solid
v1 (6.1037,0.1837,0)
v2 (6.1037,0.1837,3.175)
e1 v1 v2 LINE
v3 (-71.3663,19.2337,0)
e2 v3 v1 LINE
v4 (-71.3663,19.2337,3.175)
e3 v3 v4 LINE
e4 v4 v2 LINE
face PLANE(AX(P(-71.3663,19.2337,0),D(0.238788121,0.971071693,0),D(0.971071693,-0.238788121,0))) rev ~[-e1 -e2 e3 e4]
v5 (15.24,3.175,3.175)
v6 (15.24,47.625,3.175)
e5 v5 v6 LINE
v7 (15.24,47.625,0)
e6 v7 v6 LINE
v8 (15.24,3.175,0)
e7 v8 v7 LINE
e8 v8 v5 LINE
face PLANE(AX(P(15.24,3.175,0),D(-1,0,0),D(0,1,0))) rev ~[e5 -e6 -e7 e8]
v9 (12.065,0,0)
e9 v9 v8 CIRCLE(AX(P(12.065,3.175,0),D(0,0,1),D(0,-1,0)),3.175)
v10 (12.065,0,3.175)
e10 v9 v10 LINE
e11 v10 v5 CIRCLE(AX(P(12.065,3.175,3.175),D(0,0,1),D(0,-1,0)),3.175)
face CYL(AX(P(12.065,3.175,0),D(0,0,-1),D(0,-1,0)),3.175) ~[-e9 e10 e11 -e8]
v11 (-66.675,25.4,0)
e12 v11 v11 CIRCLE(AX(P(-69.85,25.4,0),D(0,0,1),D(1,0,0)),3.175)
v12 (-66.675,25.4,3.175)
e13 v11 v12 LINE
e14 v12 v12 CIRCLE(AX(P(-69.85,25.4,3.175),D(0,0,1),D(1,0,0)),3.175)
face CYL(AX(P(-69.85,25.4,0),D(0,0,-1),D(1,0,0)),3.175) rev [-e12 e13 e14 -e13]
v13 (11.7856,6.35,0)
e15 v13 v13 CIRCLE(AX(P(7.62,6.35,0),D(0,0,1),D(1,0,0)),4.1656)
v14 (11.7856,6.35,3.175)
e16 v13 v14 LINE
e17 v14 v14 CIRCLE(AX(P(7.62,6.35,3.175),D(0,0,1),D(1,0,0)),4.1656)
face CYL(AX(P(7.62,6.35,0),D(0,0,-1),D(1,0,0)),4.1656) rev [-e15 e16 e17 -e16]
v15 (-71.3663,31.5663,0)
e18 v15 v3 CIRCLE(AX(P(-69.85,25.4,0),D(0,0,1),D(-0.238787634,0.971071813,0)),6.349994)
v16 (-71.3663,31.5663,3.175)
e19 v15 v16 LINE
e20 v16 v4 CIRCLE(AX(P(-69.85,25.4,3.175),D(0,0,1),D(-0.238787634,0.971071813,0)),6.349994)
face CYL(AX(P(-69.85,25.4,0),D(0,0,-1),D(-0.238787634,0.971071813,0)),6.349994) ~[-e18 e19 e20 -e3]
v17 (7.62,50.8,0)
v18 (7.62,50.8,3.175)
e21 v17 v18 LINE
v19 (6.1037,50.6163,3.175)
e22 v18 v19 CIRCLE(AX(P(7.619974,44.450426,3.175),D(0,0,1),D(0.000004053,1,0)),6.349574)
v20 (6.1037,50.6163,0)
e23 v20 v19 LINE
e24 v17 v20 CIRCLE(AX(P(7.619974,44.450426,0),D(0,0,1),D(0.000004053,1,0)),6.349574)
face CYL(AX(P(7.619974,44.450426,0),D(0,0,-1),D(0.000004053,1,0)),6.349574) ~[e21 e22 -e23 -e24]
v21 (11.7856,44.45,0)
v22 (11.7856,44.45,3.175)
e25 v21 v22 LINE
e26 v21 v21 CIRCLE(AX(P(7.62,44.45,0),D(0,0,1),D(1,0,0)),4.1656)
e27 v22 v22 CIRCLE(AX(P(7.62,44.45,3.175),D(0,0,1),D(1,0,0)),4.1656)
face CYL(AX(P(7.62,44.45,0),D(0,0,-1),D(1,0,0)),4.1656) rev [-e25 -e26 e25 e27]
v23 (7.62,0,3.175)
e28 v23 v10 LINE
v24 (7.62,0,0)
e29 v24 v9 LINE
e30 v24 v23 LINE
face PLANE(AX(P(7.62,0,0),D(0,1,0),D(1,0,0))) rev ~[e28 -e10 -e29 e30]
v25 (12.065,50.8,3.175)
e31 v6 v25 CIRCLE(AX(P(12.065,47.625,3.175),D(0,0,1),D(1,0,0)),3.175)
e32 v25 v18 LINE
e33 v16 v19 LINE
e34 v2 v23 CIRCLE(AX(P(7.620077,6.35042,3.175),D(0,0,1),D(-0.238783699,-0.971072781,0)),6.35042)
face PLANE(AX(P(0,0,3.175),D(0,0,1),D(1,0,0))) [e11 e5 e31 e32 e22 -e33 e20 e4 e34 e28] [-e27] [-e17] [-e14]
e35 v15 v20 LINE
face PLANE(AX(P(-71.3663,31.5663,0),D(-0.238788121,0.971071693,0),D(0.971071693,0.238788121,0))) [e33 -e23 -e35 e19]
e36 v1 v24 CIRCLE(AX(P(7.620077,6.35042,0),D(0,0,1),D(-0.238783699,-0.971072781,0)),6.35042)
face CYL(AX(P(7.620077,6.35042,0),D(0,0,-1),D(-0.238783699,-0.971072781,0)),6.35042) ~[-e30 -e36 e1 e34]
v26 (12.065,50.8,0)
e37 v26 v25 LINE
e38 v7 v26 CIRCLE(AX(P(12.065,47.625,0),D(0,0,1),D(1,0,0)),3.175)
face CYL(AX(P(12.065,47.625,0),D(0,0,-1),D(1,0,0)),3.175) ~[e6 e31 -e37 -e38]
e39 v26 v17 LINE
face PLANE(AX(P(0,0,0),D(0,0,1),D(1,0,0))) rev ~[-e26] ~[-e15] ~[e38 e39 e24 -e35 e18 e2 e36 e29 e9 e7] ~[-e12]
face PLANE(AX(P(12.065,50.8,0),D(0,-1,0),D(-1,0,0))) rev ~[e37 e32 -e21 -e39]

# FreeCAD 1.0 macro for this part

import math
import FreeCAD as App
import Part
import Sketcher
from FreeCAD import Vector
Q = App.Units.Quantity

doc = App.newDocument("Part")
body = doc.addObject("PartDesign::Body", "Body")

sketch1 = body.newObject("Sketcher::SketchObject", "Sketch")
sketch1.AttachmentSupport = (doc.getObject("XY_Plane"), [""])
sketch1.MapMode = "FlatFace"
sketch1.addGeometry(Part.ArcOfCircle(Part.Circle(Vector(7.6, 6.3, 0), Vector(0, 0, 1), 6.3), math.radians(-103.81), math.radians(-90)), False)
sketch1.addGeometry(Part.LineSegment(Vector(7.6, 0, 0), Vector(12.1, 0, 0)), False)
sketch1.addGeometry(Part.ArcOfCircle(Part.Circle(Vector(12.1, 3.2, 0), Vector(0, 0, 1), 3.2), math.radians(-90), math.radians(0)), False)
sketch1.addGeometry(Part.LineSegment(Vector(15.2, 3.2, 0), Vector(15.2, 47.6, 0)), False)
sketch1.addGeometry(Part.ArcOfCircle(Part.Circle(Vector(12.1, 47.6, 0), Vector(0, 0, 1), 3.2), math.radians(0), math.radians(90)), False)
sketch1.addGeometry(Part.LineSegment(Vector(12.1, 50.8, 0), Vector(7.6, 50.8, 0)), False)
sketch1.addGeometry(Part.ArcOfCircle(Part.Circle(Vector(7.6, 44.5, 0), Vector(0, 0, 1), 6.3), math.radians(90), math.radians(103.81)), False)
sketch1.addGeometry(Part.LineSegment(Vector(6.1, 50.6, 0), Vector(-71.4, 31.6, 0)), False)
sketch1.addGeometry(Part.ArcOfCircle(Part.Circle(Vector(-69.8, 25.4, 0), Vector(0, 0, 1), 6.3), math.radians(104), math.radians(256)), False)
sketch1.addGeometry(Part.LineSegment(Vector(-71.4, 19.2, 0), Vector(6.1, 0.2, 0)), False)
sketch1.addGeometry(Part.Circle(Vector(-69.8, 25.4, 0), Vector(0, 0, 1), 3.2), False)
sketch1.addGeometry(Part.Circle(Vector(7.6, 6.3, 0), Vector(0, 0, 1), 4.2), False)
sketch1.addGeometry(Part.Circle(Vector(7.6, 44.5, 0), Vector(0, 0, 1), 4.2), False)
sketch1.addConstraint(Sketcher.Constraint("Tangent", 0, 2, 1, 1))
sketch1.addConstraint(Sketcher.Constraint("Tangent", 1, 2, 2, 1))
sketch1.addConstraint(Sketcher.Constraint("Tangent", 2, 2, 3, 1))
sketch1.addConstraint(Sketcher.Constraint("Tangent", 3, 2, 4, 1))
sketch1.addConstraint(Sketcher.Constraint("Tangent", 4, 2, 5, 1))
sketch1.addConstraint(Sketcher.Constraint("Tangent", 5, 2, 6, 1))
sketch1.addConstraint(Sketcher.Constraint("Tangent", 6, 2, 7, 1))
sketch1.addConstraint(Sketcher.Constraint("Tangent", 7, 2, 8, 1))
sketch1.addConstraint(Sketcher.Constraint("Tangent", 8, 2, 9, 1))
sketch1.addConstraint(Sketcher.Constraint("Tangent", 9, 2, 0, 1))
sketch1.addConstraint(Sketcher.Constraint("Horizontal", 1))
sketch1.addConstraint(Sketcher.Constraint("Vertical", 3))
sketch1.addConstraint(Sketcher.Constraint("Horizontal", 5))
sketch1.addConstraint(Sketcher.Constraint("Coincident", 10, 3, 8, 3))
sketch1.addConstraint(Sketcher.Constraint("Coincident", 11, 3, 0, 3))
sketch1.addConstraint(Sketcher.Constraint("Coincident", 12, 3, 6, 3))
sketch1.addConstraint(Sketcher.Constraint("Equal", 2, 4))
sketch1.addConstraint(Sketcher.Constraint("Equal", 0, 6))
sketch1.addConstraint(Sketcher.Constraint("Equal", 6, 8))
sketch1.addConstraint(Sketcher.Constraint("Equal", 4, 10))
sketch1.addConstraint(Sketcher.Constraint("Equal", 11, 12))
sketch1.addConstraint(Sketcher.Constraint("PointOnObject", 0, 2, -1))
sketch1.addConstraint(Sketcher.Constraint("Vertical", 0, 3, 6, 3))
sketch1.addConstraint(Sketcher.Constraint("Vertical", 7, 2, 8, 2))
sketch1.addConstraint(Sketcher.Constraint("Diameter", 10, Q("0.25 in")))
sketch1.addConstraint(Sketcher.Constraint("Radius", 0, Q("0.25 in")))
sketch1.addConstraint(Sketcher.Constraint("Diameter", 11, Q("0.328 in")))
sketch1.addConstraint(Sketcher.Constraint("DistanceY", -1, 1, 8, 3, Q("1 in")))
sketch1.addConstraint(Sketcher.Constraint("DistanceX", -1, 1, 0, 3, Q("0.3 in")))
sketch1.addConstraint(Sketcher.Constraint("DistanceX", -1, 1, 2, 2, Q("0.6 in")))
sketch1.addConstraint(Sketcher.Constraint("DistanceX", 8, 3, -1, 1, Q("2.75 in")))
pad1 = body.newObject("PartDesign::Pad", "Pad")
pad1.Profile = sketch1
pad1.Length = Q("0.125 in")

doc.recompute()
